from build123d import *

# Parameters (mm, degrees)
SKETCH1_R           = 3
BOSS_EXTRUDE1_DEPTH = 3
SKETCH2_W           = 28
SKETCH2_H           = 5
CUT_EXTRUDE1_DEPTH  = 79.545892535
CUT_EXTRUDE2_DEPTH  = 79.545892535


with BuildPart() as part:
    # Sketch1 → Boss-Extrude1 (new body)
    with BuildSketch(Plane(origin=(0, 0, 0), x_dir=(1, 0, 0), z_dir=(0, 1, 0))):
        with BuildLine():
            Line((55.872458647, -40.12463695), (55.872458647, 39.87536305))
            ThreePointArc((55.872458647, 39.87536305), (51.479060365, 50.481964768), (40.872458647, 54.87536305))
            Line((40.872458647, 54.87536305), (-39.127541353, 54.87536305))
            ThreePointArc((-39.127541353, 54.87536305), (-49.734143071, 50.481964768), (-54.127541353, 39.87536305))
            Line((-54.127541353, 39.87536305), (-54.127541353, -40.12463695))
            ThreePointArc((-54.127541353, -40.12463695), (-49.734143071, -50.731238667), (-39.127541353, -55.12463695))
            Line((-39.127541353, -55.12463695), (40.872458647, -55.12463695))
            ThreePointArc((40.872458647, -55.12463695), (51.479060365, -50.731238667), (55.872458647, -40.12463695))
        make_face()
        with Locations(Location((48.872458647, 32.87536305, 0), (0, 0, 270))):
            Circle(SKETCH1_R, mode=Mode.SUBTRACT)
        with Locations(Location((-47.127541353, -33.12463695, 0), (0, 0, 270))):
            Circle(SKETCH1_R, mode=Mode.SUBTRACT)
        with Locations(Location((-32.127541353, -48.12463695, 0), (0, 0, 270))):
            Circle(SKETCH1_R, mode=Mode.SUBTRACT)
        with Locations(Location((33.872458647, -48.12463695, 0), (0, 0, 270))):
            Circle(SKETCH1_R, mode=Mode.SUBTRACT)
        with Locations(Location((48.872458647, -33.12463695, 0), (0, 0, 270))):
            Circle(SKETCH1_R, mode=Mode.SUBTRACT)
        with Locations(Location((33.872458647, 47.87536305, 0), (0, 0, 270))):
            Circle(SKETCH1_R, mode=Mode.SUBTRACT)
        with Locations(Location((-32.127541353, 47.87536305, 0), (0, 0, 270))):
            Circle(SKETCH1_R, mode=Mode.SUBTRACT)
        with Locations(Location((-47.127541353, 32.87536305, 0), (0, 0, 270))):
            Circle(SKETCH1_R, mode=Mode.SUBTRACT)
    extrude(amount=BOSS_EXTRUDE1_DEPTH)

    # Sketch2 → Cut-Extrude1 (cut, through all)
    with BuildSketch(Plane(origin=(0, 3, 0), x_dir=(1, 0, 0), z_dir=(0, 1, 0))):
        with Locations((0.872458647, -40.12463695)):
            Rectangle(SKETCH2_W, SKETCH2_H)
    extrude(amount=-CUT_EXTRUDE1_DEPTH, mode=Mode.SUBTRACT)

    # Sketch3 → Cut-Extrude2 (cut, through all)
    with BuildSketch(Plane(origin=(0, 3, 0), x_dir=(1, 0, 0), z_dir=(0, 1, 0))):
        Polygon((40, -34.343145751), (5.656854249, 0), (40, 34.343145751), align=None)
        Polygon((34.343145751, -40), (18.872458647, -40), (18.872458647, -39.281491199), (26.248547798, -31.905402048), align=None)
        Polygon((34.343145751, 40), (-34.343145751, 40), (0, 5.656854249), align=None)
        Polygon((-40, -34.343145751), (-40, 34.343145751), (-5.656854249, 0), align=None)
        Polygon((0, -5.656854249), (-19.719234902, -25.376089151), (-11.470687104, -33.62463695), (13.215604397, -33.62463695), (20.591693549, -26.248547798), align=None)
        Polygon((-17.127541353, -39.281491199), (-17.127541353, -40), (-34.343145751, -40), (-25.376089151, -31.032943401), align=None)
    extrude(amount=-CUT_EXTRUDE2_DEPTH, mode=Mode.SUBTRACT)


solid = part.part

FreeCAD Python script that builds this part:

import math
import FreeCAD as App
import Part
import Sketcher
Q = App.Units.Quantity

doc = App.newDocument("Part")
body = doc.addObject("PartDesign::Body", "Body")

# Sketch on XZ plane
sketch1 = body.newObject("Sketcher::SketchObject", "Sketch")
sketch1.AttachmentSupport = (doc.getObject("XZ_Plane"), [""])
sketch1.MapMode = "FlatFace"
sketch1.addGeometry([
    Part.LineSegment(App.Vector(55.872459, 40.124637, 0), App.Vector(55.872459, -39.875363, 0)),  # 0
    Part.ArcOfCircle(Part.Circle(App.Vector(40.872459, -39.875363, 0), App.Vector(0, 0, 1), 15), math.radians(-90), math.radians(0)),  # 1
    Part.LineSegment(App.Vector(40.872459, -54.875363, 0), App.Vector(-39.127541, -54.875363, 0)),  # 2
    Part.ArcOfCircle(Part.Circle(App.Vector(-39.127541, -39.875363, 0), App.Vector(0, 0, 1), 15), math.radians(180), math.radians(270)),  # 3
    Part.LineSegment(App.Vector(-54.127541, -39.875363, 0), App.Vector(-54.127541, 40.124637, 0)),  # 4
    Part.ArcOfCircle(Part.Circle(App.Vector(-39.127541, 40.124637, 0), App.Vector(0, 0, 1), 15), math.radians(90), math.radians(180)),  # 5
    Part.LineSegment(App.Vector(-39.127541, 55.124637, 0), App.Vector(40.872459, 55.124637, 0)),  # 6
    Part.ArcOfCircle(Part.Circle(App.Vector(40.872459, 40.124637, 0), App.Vector(0, 0, 1), 15), math.radians(0), math.radians(90)),  # 7
    Part.Circle(App.Vector(-32.127541, 48.124637, 0), App.Vector(0, 0, 1), 3),  # 8
    Part.Circle(App.Vector(-47.127541, 33.124637, 0), App.Vector(0, 0, 1), 3),  # 9
    Part.Circle(App.Vector(33.872459, 48.124637, 0), App.Vector(0, 0, 1), 3),  # 10
    Part.Circle(App.Vector(48.872459, 33.124637, 0), App.Vector(0, 0, 1), 3),  # 11
    Part.Circle(App.Vector(-47.127541, -32.875363, 0), App.Vector(0, 0, 1), 3),  # 12
    Part.Circle(App.Vector(-32.127541, -47.875363, 0), App.Vector(0, 0, 1), 3),  # 13
    Part.Circle(App.Vector(48.872459, -32.875363, 0), App.Vector(0, 0, 1), 3),  # 14
    Part.Circle(App.Vector(33.872459, -47.875363, 0), App.Vector(0, 0, 1), 3),  # 15
], False)
sketch1.addConstraint([
    Sketcher.Constraint("Tangent", 0, 2, 1, 2),
    Sketcher.Constraint("Tangent", 1, 1, 2, 1),
    Sketcher.Constraint("Tangent", 2, 2, 3, 2),
    Sketcher.Constraint("Tangent", 3, 1, 4, 1),
    Sketcher.Constraint("Tangent", 4, 2, 5, 2),
    Sketcher.Constraint("Tangent", 5, 1, 6, 1),
    Sketcher.Constraint("Tangent", 6, 2, 7, 2),
    Sketcher.Constraint("Tangent", 7, 1, 0, 1),
    Sketcher.Constraint("Vertical", 0),
    Sketcher.Constraint("Horizontal", 2),
    Sketcher.Constraint("Vertical", 4),
    Sketcher.Constraint("Horizontal", 6),
    Sketcher.Constraint("Equal", 1, 3),
    Sketcher.Constraint("Equal", 3, 5),
    Sketcher.Constraint("Equal", 5, 7),
    Sketcher.Constraint("Equal", 8, 9),
    Sketcher.Constraint("Equal", 9, 10),
    Sketcher.Constraint("Equal", 10, 11),
    Sketcher.Constraint("Equal", 11, 12),
    Sketcher.Constraint("Equal", 12, 13),
    Sketcher.Constraint("Equal", 13, 14),
    Sketcher.Constraint("Equal", 14, 15),
    Sketcher.Constraint("Horizontal", 8, 3, 10, 3),
    Sketcher.Constraint("Horizontal", 9, 3, 11, 3),
    Sketcher.Constraint("Horizontal", 12, 3, 14, 3),
    Sketcher.Constraint("Horizontal", 13, 3, 15, 3),
    Sketcher.Constraint("Vertical", 9, 3, 12, 3),
    Sketcher.Constraint("Vertical", 8, 3, 13, 3),
    Sketcher.Constraint("Vertical", 11, 3, 14, 3),
    Sketcher.Constraint("Vertical", 10, 3, 15, 3),
    Sketcher.Constraint("Equal", 6, 0),
    Sketcher.Constraint("Diameter", 8, Q("6 mm")),
    Sketcher.Constraint("Radius", 1, Q("15 mm")),
    Sketcher.Constraint("DistanceX", 2, 2, 2, 1, Q("80 mm")),
    Sketcher.Constraint("DistanceX", 5, 3, 8, 3, Q("7 mm")),
    Sketcher.Constraint("DistanceY", 5, 3, 8, 3, Q("8 mm")),
    Sketcher.Constraint("DistanceX", 9, 3, 5, 3, Q("8 mm")),
    Sketcher.Constraint("DistanceY", 9, 3, 5, 3, Q("7 mm")),
    Sketcher.Constraint("DistanceX", 10, 3, 7, 3, Q("7 mm")),
    Sketcher.Constraint("DistanceX", 7, 3, 11, 3, Q("8 mm")),
    Sketcher.Constraint("DistanceY", 3, 3, 12, 3, Q("7 mm")),
    Sketcher.Constraint("DistanceY", 13, 3, 3, 3, Q("8 mm")),
    Sketcher.Constraint("DistanceX", -1, 1, 1, 3, Q("40.872459 mm")),
    Sketcher.Constraint("DistanceY", 1, 3, -1, 1, Q("39.875363 mm")),
])
pad1 = body.newObject("PartDesign::Pad", "Pad")
pad1.Profile = sketch1
pad1.Length = 3
pad1.Reversed = True

# Sketch on XZ plane
sketch2 = body.newObject("Sketcher::SketchObject", "Sketch001")
sketch2.AttachmentSupport = (doc.getObject("XZ_Plane"), [""])
sketch2.MapMode = "FlatFace"
sketch2.AttachmentOffset = App.Placement(App.Vector(0, 0, -3), App.Rotation())
sketch2.addGeometry([
    Part.LineSegment(App.Vector(-13.127541, 37.624637, 0), App.Vector(-13.127541, 42.624637, 0)),
    Part.LineSegment(App.Vector(-13.127541, 42.624637, 0), App.Vector(14.872459, 42.624637, 0)),
    Part.LineSegment(App.Vector(14.872459, 42.624637, 0), App.Vector(14.872459, 37.624637, 0)),
    Part.LineSegment(App.Vector(14.872459, 37.624637, 0), App.Vector(-13.127541, 37.624637, 0)),
], False)
sketch2.addConstraint([
    Sketcher.Constraint("Coincident", 0, 2, 1, 1),
    Sketcher.Constraint("Coincident", 1, 2, 2, 1),
    Sketcher.Constraint("Coincident", 2, 2, 3, 1),
    Sketcher.Constraint("Coincident", 3, 2, 0, 1),
    Sketcher.Constraint("Vertical", 0),
    Sketcher.Constraint("Horizontal", 1),
    Sketcher.Constraint("Vertical", 2),
    Sketcher.Constraint("Horizontal", 3),
    Sketcher.Constraint("DistanceX", 1, 1, 1, 2, Q("28 mm")),
    Sketcher.Constraint("DistanceY", 0, 1, 0, 2, Q("5 mm")),
    Sketcher.Constraint("DistanceX", 0, 2, -1, 1, Q("13.127541 mm")),
    Sketcher.Constraint("DistanceY", -1, 1, 0, 2, Q("42.624637 mm")),
])
pocket1 = body.newObject("PartDesign::Pocket", "Pocket")
pocket1.Profile = sketch2
pocket1.Type = "ThroughAll"
pocket1.Reversed = True

# Sketch on XZ plane
sketch3 = body.newObject("Sketcher::SketchObject", "Sketch002")
sketch3.AttachmentSupport = (doc.getObject("XZ_Plane"), [""])
sketch3.MapMode = "FlatFace"
sketch3.AttachmentOffset = App.Placement(App.Vector(0, 0, -3), App.Rotation())
sketch3.addGeometry([
    Part.LineSegment(App.Vector(5.656854, 0, 0), App.Vector(40, 34.343146, 0)),  # 0
    Part.LineSegment(App.Vector(40, 34.343146, 0), App.Vector(40, -34.343146, 0)),  # 1
    Part.LineSegment(App.Vector(40, -34.343146, 0), App.Vector(5.656854, 0, 0)),  # 2
    Part.LineSegment(App.Vector(18.872459, 40, 0), App.Vector(34.343146, 40, 0)),  # 3
    Part.LineSegment(App.Vector(34.343146, 40, 0), App.Vector(26.248548, 31.905402, 0)),  # 4
    Part.LineSegment(App.Vector(26.248548, 31.905402, 0), App.Vector(18.872459, 39.281491, 0)),  # 5
    Part.LineSegment(App.Vector(18.872459, 39.281491, 0), App.Vector(18.872459, 40, 0)),  # 6
    Part.LineSegment(App.Vector(34.343146, -40, 0), App.Vector(-34.343146, -40, 0)),  # 7
    Part.LineSegment(App.Vector(-34.343146, -40, 0), App.Vector(0, -5.656854, 0)),  # 8
    Part.LineSegment(App.Vector(0, -5.656854, 0), App.Vector(34.343146, -40, 0)),  # 9
    Part.LineSegment(App.Vector(-40, -34.343146, 0), App.Vector(-40, 34.343146, 0)),  # 10
    Part.LineSegment(App.Vector(-40, 34.343146, 0), App.Vector(-5.656854, 0, 0)),  # 11
    Part.LineSegment(App.Vector(-5.656854, 0, 0), App.Vector(-40, -34.343146, 0)),  # 12
    Part.LineSegment(App.Vector(0, 5.656854, 0), App.Vector(-19.719235, 25.376089, 0)),  # 13
    Part.LineSegment(App.Vector(-19.719235, 25.376089, 0), App.Vector(-11.470687, 33.624637, 0)),  # 14
    Part.LineSegment(App.Vector(-11.470687, 33.624637, 0), App.Vector(13.215604, 33.624637, 0)),  # 15
    Part.LineSegment(App.Vector(13.215604, 33.624637, 0), App.Vector(20.591694, 26.248548, 0)),  # 16
    Part.LineSegment(App.Vector(20.591694, 26.248548, 0), App.Vector(0, 5.656854, 0)),  # 17
    Part.LineSegment(App.Vector(-17.127541, 40, 0), App.Vector(-17.127541, 39.281491, 0)),  # 18
    Part.LineSegment(App.Vector(-17.127541, 39.281491, 0), App.Vector(-25.376089, 31.032943, 0)),  # 19
    Part.LineSegment(App.Vector(-25.376089, 31.032943, 0), App.Vector(-34.343146, 40, 0)),  # 20
    Part.LineSegment(App.Vector(-34.343146, 40, 0), App.Vector(-17.127541, 40, 0)),  # 21
], False)
sketch3.addConstraint([
    Sketcher.Constraint("Coincident", 0, 2, 1, 1),
    Sketcher.Constraint("Coincident", 1, 2, 2, 1),
    Sketcher.Constraint("Coincident", 2, 2, 0, 1),
    Sketcher.Constraint("Coincident", 3, 2, 4, 1),
    Sketcher.Constraint("Coincident", 4, 2, 5, 1),
    Sketcher.Constraint("Coincident", 5, 2, 6, 1),
    Sketcher.Constraint("Coincident", 6, 2, 3, 1),
    Sketcher.Constraint("Coincident", 7, 2, 8, 1),
    Sketcher.Constraint("Coincident", 8, 2, 9, 1),
    Sketcher.Constraint("Coincident", 9, 2, 7, 1),
    Sketcher.Constraint("Coincident", 10, 2, 11, 1),
    Sketcher.Constraint("Coincident", 11, 2, 12, 1),
    Sketcher.Constraint("Coincident", 12, 2, 10, 1),
    Sketcher.Constraint("Coincident", 13, 2, 14, 1),
    Sketcher.Constraint("Coincident", 14, 2, 15, 1),
    Sketcher.Constraint("Coincident", 15, 2, 16, 1),
    Sketcher.Constraint("Coincident", 16, 2, 17, 1),
    Sketcher.Constraint("Coincident", 17, 2, 13, 1),
    Sketcher.Constraint("Coincident", 18, 2, 19, 1),
    Sketcher.Constraint("Coincident", 19, 2, 20, 1),
    Sketcher.Constraint("Coincident", 20, 2, 21, 1),
    Sketcher.Constraint("Coincident", 21, 2, 18, 1),
    Sketcher.Constraint("Vertical", 1),
    Sketcher.Constraint("Horizontal", 3),
    Sketcher.Constraint("Vertical", 6),
    Sketcher.Constraint("Horizontal", 7),
    Sketcher.Constraint("Vertical", 10),
    Sketcher.Constraint("Horizontal", 15),
    Sketcher.Constraint("Vertical", 18),
    Sketcher.Constraint("Horizontal", 21),
    Sketcher.Constraint("Symmetric", 3, 2, 7, 2, -1, 1),
    Sketcher.Constraint("Symmetric", 1, 2, 10, 2, -1, 1),
    Sketcher.Constraint("Symmetric", 2, 2, 11, 2, -1, 1),
    Sketcher.Constraint("Symmetric", 8, 2, 17, 2, -1, 1),
    Sketcher.Constraint("Symmetric", 9, 2, 20, 2, -1, 1),
    Sketcher.Constraint("PointOnObject", 2, 2, -1),
    Sketcher.Constraint("PointOnObject", 8, 2, -2),
    Sketcher.Constraint("Perpendicular", 0, 2),
    Sketcher.Constraint("Perpendicular", 2, 4),
    Sketcher.Constraint("Perpendicular", 4, 5),
    Sketcher.Constraint("Perpendicular", 5, 8),
    Sketcher.Constraint("Perpendicular", 8, 9),
    Sketcher.Constraint("Perpendicular", 11, 12),
    Sketcher.Constraint("Perpendicular", 12, 13),
    Sketcher.Constraint("Perpendicular", 13, 14),
    Sketcher.Constraint("Perpendicular", 14, 16),
    Sketcher.Constraint("Perpendicular", 16, 17),
    Sketcher.Constraint("Parallel", 17, 19),
    Sketcher.Constraint("Perpendicular", 19, 20),
    Sketcher.Constraint("Horizontal", 0, 2, 10, 2),
    Sketcher.Constraint("Horizontal", 5, 2, 18, 2),
    Sketcher.Constraint("Equal", 7, 1),
    Sketcher.Constraint("Equal", 5, 16),
    Sketcher.Constraint("Equal", 14, 19),
    Sketcher.Constraint("DistanceX", -1, 1, 0, 2, Q("40 mm")),
    Sketcher.Constraint("DistanceY", -1, 1, 3, 2, Q("40 mm")),
    Sketcher.Constraint("DistanceX", 18, 2, 5, 2, Q("36 mm")),
    Sketcher.Constraint("DistanceX", 7, 2, 7, 1, Q("68.686292 mm")),
    Sketcher.Constraint("DistanceX", 15, 1, 15, 2, Q("24.686292 mm")),
    Sketcher.Constraint("DistanceY", 6, 1, 6, 2, Q("0.718509 mm")),
    Sketcher.Constraint("Distance", 4, Q("11.44749 mm")),
])
pocket2 = body.newObject("PartDesign::Pocket", "Pocket001")
pocket2.Profile = sketch3
pocket2.Type = "ThroughAll"
pocket2.Reversed = True

doc.recompute()
